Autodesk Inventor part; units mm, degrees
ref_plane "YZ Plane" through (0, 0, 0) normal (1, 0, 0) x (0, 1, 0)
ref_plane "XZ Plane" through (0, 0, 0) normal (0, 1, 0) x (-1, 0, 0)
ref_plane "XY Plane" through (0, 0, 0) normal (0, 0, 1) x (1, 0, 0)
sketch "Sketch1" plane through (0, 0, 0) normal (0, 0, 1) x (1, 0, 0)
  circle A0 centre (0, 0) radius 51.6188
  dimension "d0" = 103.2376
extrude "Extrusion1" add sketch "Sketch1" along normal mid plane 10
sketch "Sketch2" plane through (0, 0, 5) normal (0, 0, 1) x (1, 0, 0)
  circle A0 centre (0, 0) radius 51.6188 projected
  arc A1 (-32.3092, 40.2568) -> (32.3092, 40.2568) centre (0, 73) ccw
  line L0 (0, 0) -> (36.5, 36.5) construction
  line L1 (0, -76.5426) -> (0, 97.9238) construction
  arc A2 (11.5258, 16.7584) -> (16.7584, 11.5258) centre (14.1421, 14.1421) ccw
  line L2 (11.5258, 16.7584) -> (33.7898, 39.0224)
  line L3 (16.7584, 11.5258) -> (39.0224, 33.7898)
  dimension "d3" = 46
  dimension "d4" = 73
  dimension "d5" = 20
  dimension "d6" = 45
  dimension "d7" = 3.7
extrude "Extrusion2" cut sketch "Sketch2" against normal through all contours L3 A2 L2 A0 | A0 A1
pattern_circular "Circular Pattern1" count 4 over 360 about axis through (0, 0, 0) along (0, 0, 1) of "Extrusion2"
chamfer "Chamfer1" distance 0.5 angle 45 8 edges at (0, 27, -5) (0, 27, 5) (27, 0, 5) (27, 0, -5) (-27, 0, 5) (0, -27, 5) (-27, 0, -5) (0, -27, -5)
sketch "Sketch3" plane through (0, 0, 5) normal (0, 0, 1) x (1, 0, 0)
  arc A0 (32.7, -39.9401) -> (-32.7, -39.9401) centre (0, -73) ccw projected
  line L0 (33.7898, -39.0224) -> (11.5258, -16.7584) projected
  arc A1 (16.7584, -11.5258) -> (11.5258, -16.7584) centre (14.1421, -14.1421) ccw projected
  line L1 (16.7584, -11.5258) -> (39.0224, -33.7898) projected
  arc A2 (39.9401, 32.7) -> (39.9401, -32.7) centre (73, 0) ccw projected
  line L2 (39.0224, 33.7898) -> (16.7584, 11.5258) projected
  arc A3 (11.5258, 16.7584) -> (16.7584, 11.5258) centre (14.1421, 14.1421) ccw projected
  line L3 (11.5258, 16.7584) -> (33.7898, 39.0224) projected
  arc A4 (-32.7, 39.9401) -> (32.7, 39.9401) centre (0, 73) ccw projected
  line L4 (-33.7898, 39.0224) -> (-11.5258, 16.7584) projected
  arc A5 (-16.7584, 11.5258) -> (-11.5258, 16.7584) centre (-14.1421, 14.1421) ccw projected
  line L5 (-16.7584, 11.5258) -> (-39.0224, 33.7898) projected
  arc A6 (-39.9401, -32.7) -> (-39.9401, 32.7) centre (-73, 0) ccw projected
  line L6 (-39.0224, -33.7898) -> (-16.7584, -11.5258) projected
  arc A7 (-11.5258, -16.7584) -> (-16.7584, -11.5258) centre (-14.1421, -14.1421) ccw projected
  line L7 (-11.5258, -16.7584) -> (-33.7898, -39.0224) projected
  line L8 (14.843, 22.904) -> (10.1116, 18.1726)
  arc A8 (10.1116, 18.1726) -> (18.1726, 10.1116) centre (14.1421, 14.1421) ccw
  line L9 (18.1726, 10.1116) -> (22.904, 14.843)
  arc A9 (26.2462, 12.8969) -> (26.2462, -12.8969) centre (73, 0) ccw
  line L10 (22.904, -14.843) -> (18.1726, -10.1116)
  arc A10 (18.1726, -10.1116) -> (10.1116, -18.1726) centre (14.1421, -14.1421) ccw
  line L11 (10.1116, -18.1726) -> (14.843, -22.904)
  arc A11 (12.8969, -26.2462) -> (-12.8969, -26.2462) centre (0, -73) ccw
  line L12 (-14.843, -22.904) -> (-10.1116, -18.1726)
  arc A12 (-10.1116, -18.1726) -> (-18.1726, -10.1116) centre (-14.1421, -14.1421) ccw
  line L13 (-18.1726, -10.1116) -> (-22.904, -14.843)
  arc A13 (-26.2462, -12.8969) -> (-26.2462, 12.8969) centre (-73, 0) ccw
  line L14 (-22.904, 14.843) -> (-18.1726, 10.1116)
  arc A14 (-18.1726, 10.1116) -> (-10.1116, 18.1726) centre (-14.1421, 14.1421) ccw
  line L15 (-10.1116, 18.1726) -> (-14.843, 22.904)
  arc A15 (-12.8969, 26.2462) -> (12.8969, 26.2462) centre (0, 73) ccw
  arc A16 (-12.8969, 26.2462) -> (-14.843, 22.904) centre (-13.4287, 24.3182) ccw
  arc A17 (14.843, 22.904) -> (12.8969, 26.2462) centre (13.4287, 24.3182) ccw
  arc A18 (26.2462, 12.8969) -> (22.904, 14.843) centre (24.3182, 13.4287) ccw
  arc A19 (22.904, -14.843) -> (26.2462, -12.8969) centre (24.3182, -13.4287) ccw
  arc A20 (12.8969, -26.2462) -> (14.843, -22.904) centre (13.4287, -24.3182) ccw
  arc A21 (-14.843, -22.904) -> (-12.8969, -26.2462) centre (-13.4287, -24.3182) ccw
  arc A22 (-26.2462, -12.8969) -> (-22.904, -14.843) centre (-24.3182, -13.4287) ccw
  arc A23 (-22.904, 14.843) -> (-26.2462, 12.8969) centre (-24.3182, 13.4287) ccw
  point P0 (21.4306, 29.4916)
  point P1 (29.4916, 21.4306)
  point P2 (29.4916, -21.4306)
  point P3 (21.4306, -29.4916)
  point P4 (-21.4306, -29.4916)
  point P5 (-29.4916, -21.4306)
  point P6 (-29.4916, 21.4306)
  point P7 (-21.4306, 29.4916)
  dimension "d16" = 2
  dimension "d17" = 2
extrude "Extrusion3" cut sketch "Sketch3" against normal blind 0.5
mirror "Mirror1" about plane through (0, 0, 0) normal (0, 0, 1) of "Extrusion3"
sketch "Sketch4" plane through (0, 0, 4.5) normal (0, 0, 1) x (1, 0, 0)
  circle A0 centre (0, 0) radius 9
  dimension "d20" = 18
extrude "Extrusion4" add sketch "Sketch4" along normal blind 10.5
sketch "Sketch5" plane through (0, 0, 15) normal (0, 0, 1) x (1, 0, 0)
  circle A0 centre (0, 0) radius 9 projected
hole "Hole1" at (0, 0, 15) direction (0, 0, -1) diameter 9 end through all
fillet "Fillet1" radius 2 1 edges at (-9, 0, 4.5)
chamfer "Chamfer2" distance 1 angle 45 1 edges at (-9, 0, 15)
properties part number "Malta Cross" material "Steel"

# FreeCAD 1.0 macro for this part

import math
import FreeCAD as App
import Part
import Sketcher
from FreeCAD import Vector
Q = App.Units.Quantity


def edges_at(feature, points):
    """Names of the edges that pass closest to the given points."""
    edges = feature.Shape.Edges
    near = lambda p: min(range(len(edges)), key=lambda i: edges[i].distToShape(Part.Vertex(*p))[0])
    return sorted({f"Edge{near(p) + 1}" for p in points})

doc = App.newDocument("Part")
body = doc.addObject("PartDesign::Body", "Body")

# Sketch on XY plane
sketch1 = body.newObject("Sketcher::SketchObject", "Sketch")
sketch1.AttachmentSupport = (doc.getObject("XY_Plane"), [""])
sketch1.MapMode = "FlatFace"
sketch1.addGeometry(Part.Circle(Vector(0, 0, 0), Vector(0, 0, 1), 51.6188), False)
sketch1.addConstraint([
    Sketcher.Constraint("Coincident", 0, 3, -1, 1),
    Sketcher.Constraint("Diameter", 0, 103.2376),
])
pad1 = body.newObject("PartDesign::Pad", "Pad")
pad1.Profile = sketch1
pad1.Length = 10
pad1.Midplane = True

# Sketch on XY plane
sketch2 = body.newObject("Sketcher::SketchObject", "Sketch001")
sketch2.AttachmentSupport = (doc.getObject("XY_Plane"), [""])
sketch2.MapMode = "FlatFace"
sketch2.AttachmentOffset = App.Placement(Vector(0, 0, 5), App.Rotation())
sketch2.addGeometry([
    Part.LineSegment(Vector(16.7584, 11.5258, 0), Vector(39.0224, 33.7898, 0)),  # 0
    Part.ArcOfCircle(Part.Circle(Vector(0, 0, 0), Vector(0, 0, 1), 51.6188), math.radians(40.889544), math.radians(49.110456)),  # 1
    Part.LineSegment(Vector(33.7898, 39.0224, 0), Vector(11.5258, 16.7584, 0)),  # 2
    Part.ArcOfCircle(Part.Circle(Vector(14.1421, 14.1421, 0), Vector(0, 0, 1), 3.700007), math.radians(135), math.radians(315)),  # 3
    Part.ArcOfCircle(Part.Circle(Vector(0, 0, 0), Vector(0, 0, 1), 51.6188), math.radians(51.250258), math.radians(128.749742)),  # 4
    Part.ArcOfCircle(Part.Circle(Vector(0, 73, 0), Vector(0, 0, 1), 46.000017), math.radians(-134.617754), math.radians(-45.382246)),  # 5
], False)
sketch2.addConstraint([
    Sketcher.Constraint("Coincident", 0, 2, 1, 1),
    Sketcher.Constraint("Coincident", 1, 2, 2, 1),
    Sketcher.Constraint("Tangent", 2, 2, 3, 1),
    Sketcher.Constraint("Tangent", 3, 2, 0, 1),
    Sketcher.Constraint("Coincident", 4, 1, 5, 2),
    Sketcher.Constraint("Coincident", 5, 1, 4, 2),
    Sketcher.Constraint("Coincident", 1, 3, -1, 1),
    Sketcher.Constraint("Coincident", 4, 3, -1, 1),
    Sketcher.Constraint("Equal", 1, 4),
    Sketcher.Constraint("PointOnObject", 5, 3, -2),
    Sketcher.Constraint("Parallel", 0, 2),
    Sketcher.Constraint("Equal", 0, 2),
    Sketcher.Constraint("Radius", 5, 46.0),
    Sketcher.Constraint("Radius", 3, 3.7),
    Sketcher.Constraint("Angle", 0, Q("45 deg")),
    Sketcher.Constraint("DistanceY", -1, 1, 5, 3, 73.0),
    Sketcher.Constraint("Radius", 1, 51.6188),
    Sketcher.Constraint("Distance", 0, 31.486),
])
pocket1 = body.newObject("PartDesign::Pocket", "Pocket")
pocket1.Profile = sketch2
pocket1.Type = "ThroughAll"
doc.recompute()

polarpattern = body.newObject("PartDesign::PolarPattern", "PolarPattern")
polarpattern.Originals = [pocket1]
polarpattern.Axis = (doc.getObject("Z_Axis"), [""])
polarpattern.Angle = 360
polarpattern.Occurrences = 4
body.Tip = polarpattern
doc.recompute()

chamfer = body.newObject("PartDesign::Chamfer", "Chamfer")
chamfer.Base = (polarpattern, edges_at(polarpattern, [
    (0, 27, -5),
    (0, 27, 5),
    (27, 0, 5),
    (27, 0, -5),
    (-27, 0, 5),
    (0, -27, 5),
    (-27, 0, -5),
    (0, -27, -5),
]))
chamfer.Size = 0.5

# Sketch on XY plane
sketch3 = body.newObject("Sketcher::SketchObject", "Sketch002")
sketch3.AttachmentSupport = (doc.getObject("XY_Plane"), [""])
sketch3.MapMode = "FlatFace"
sketch3.AttachmentOffset = App.Placement(Vector(0, 0, 5), App.Rotation())
sketch3.addGeometry([
    Part.LineSegment(Vector(10.1116, 18.1726, 0), Vector(14.843, 22.904, 0)),  # 0
    Part.ArcOfCircle(Part.Circle(Vector(13.4287, 24.3182, 0), Vector(0, 0, 1), 2.000052), math.radians(-44.997974), math.radians(105.420447)),  # 1
    Part.ArcOfCircle(Part.Circle(Vector(0, 73, 0), Vector(0, 0, 1), 48.499978), math.radians(-105.421364), math.radians(-74.578636)),  # 2
    Part.ArcOfCircle(Part.Circle(Vector(-13.4287, 24.3182, 0), Vector(0, 0, 1), 1.999999), math.radians(74.579553), math.radians(224.997974)),  # 3
    Part.LineSegment(Vector(-14.843, 22.904, 0), Vector(-10.1116, 18.1726, 0)),  # 4
    Part.ArcOfCircle(Part.Circle(Vector(-14.1421, 14.1421, 0), Vector(0, 0, 1), 5.699988), math.radians(-135), math.radians(45)),  # 5
    Part.LineSegment(Vector(-18.1726, 10.1116, 0), Vector(-22.904, 14.843, 0)),  # 6
    Part.ArcOfCircle(Part.Circle(Vector(-24.3182, 13.4287, 0), Vector(0, 0, 1), 2.000052), math.radians(45.002026), math.radians(195.420447)),  # 7
    Part.ArcOfCircle(Part.Circle(Vector(-73, 0, 0), Vector(0, 0, 1), 48.499978), math.radians(-15.421364), math.radians(15.421364)),  # 8
    Part.ArcOfCircle(Part.Circle(Vector(-24.3182, -13.4287, 0), Vector(0, 0, 1), 1.999999), math.radians(164.579553), math.radians(314.997974)),  # 9
    Part.LineSegment(Vector(-22.904, -14.843, 0), Vector(-18.1726, -10.1116, 0)),  # 10
    Part.ArcOfCircle(Part.Circle(Vector(-14.1421, -14.1421, 0), Vector(0, 0, 1), 5.699988), math.radians(-45), math.radians(135)),  # 11
    Part.LineSegment(Vector(-10.1116, -18.1726, 0), Vector(-14.843, -22.904, 0)),  # 12
    Part.ArcOfCircle(Part.Circle(Vector(-13.4287, -24.3182, 0), Vector(0, 0, 1), 2.000052), math.radians(135.002026), math.radians(285.420447)),  # 13
    Part.ArcOfCircle(Part.Circle(Vector(0, -73, 0), Vector(0, 0, 1), 48.499978), math.radians(74.578636), math.radians(105.421364)),  # 14
    Part.ArcOfCircle(Part.Circle(Vector(13.4287, -24.3182, 0), Vector(0, 0, 1), 1.999999), math.radians(-105.420447), math.radians(44.997974)),  # 15
    Part.LineSegment(Vector(14.843, -22.904, 0), Vector(10.1116, -18.1726, 0)),  # 16
    Part.ArcOfCircle(Part.Circle(Vector(14.1421, -14.1421, 0), Vector(0, 0, 1), 5.699988), math.radians(45), math.radians(225)),  # 17
    Part.LineSegment(Vector(18.1726, -10.1116, 0), Vector(22.904, -14.843, 0)),  # 18
    Part.ArcOfCircle(Part.Circle(Vector(24.3182, -13.4287, 0), Vector(0, 0, 1), 2.000052), math.radians(-134.997974), math.radians(15.420447)),  # 19
    Part.ArcOfCircle(Part.Circle(Vector(73, 0, 0), Vector(0, 0, 1), 48.499978), math.radians(164.578636), math.radians(195.421364)),  # 20
    Part.ArcOfCircle(Part.Circle(Vector(24.3182, 13.4287, 0), Vector(0, 0, 1), 1.999999), math.radians(-15.420447), math.radians(134.997974)),  # 21
    Part.LineSegment(Vector(22.904, 14.843, 0), Vector(18.1726, 10.1116, 0)),  # 22
    Part.ArcOfCircle(Part.Circle(Vector(14.1421, 14.1421, 0), Vector(0, 0, 1), 5.699988), math.radians(135), math.radians(315)),  # 23
], False)
sketch3.addConstraint([
    Sketcher.Constraint("Tangent", 0, 2, 1, 1),
    Sketcher.Constraint("Tangent", 1, 2, 2, 2),
    Sketcher.Constraint("Tangent", 2, 1, 3, 1),
    Sketcher.Constraint("Tangent", 3, 2, 4, 1),
    Sketcher.Constraint("Tangent", 4, 2, 5, 2),
    Sketcher.Constraint("Tangent", 5, 1, 6, 1),
    Sketcher.Constraint("Tangent", 6, 2, 7, 1),
    Sketcher.Constraint("Tangent", 7, 2, 8, 2),
    Sketcher.Constraint("Tangent", 8, 1, 9, 1),
    Sketcher.Constraint("Tangent", 9, 2, 10, 1),
    Sketcher.Constraint("Tangent", 10, 2, 11, 2),
    Sketcher.Constraint("Tangent", 11, 1, 12, 1),
    Sketcher.Constraint("Tangent", 12, 2, 13, 1),
    Sketcher.Constraint("Tangent", 13, 2, 14, 2),
    Sketcher.Constraint("Tangent", 14, 1, 15, 1),
    Sketcher.Constraint("Tangent", 15, 2, 16, 1),
    Sketcher.Constraint("Tangent", 16, 2, 17, 2),
    Sketcher.Constraint("Tangent", 17, 1, 18, 1),
    Sketcher.Constraint("Tangent", 18, 2, 19, 1),
    Sketcher.Constraint("Tangent", 19, 2, 20, 2),
    Sketcher.Constraint("Tangent", 20, 1, 21, 1),
    Sketcher.Constraint("Tangent", 21, 2, 22, 1),
    Sketcher.Constraint("Tangent", 22, 2, 23, 2),
    Sketcher.Constraint("Tangent", 23, 1, 0, 1),
    Sketcher.Constraint("Equal", 1, 3),
    Sketcher.Constraint("Equal", 3, 7),
    Sketcher.Constraint("Equal", 2, 8),
    Sketcher.Constraint("Equal", 7, 9),
    Sketcher.Constraint("Equal", 5, 11),
    Sketcher.Constraint("Equal", 9, 13),
    Sketcher.Constraint("Equal", 8, 14),
    Sketcher.Constraint("Equal", 13, 15),
    Sketcher.Constraint("Equal", 11, 17),
    Sketcher.Constraint("Equal", 15, 19),
    Sketcher.Constraint("Equal", 14, 20),
    Sketcher.Constraint("Equal", 19, 21),
    Sketcher.Constraint("Equal", 17, 23),
    Sketcher.Constraint("Symmetric", 1, 3, 13, 3, -1, 1),
    Sketcher.Constraint("Symmetric", 3, 3, 15, 3, -1, 1),
    Sketcher.Constraint("Symmetric", 5, 3, 17, 3, -1, 1),
    Sketcher.Constraint("Symmetric", 7, 3, 19, 3, -1, 1),
    Sketcher.Constraint("Symmetric", 9, 3, 21, 3, -1, 1),
    Sketcher.Constraint("Symmetric", 11, 3, 23, 3, -1, 1),
    Sketcher.Constraint("Symmetric", 1, 3, 3, 3, -2),
    Sketcher.Constraint("Symmetric", 11, 3, 17, 3, -2),
    Sketcher.Constraint("Symmetric", 9, 3, 19, 3, -2),
    Sketcher.Constraint("Perpendicular", 0, 4),
    Sketcher.Constraint("Parallel", 4, 6),
    Sketcher.Constraint("Equal", 4, 6),
    Sketcher.Constraint("Radius", 1, 2.0),
    Sketcher.Constraint("Radius", 2, 48.5),
    Sketcher.Constraint("Radius", 5, 5.7),
    Sketcher.Constraint("DistanceY", -1, 1, 2, 3, 73.0),
    Sketcher.Constraint("DistanceX", 8, 3, -1, 1, 73.0),
    Sketcher.Constraint("DistanceX", 5, 3, -1, 1, 14.142),
])
pocket2 = body.newObject("PartDesign::Pocket", "Pocket001")
pocket2.Profile = sketch3
pocket2.Length = 0.5
doc.recompute()

mirrored = body.newObject("PartDesign::Mirrored", "Mirrored")
mirrored.Originals = [pocket2]
mirrored.MirrorPlane = (doc.getObject("XY_Plane"), [""])
body.Tip = mirrored

# Sketch on XY plane
sketch4 = body.newObject("Sketcher::SketchObject", "Sketch003")
sketch4.AttachmentSupport = (doc.getObject("XY_Plane"), [""])
sketch4.MapMode = "FlatFace"
sketch4.AttachmentOffset = App.Placement(Vector(0, 0, 4.5), App.Rotation())
sketch4.addGeometry(Part.Circle(Vector(0, 0, 0), Vector(0, 0, 1), 9), False)
sketch4.addConstraint([
    Sketcher.Constraint("Coincident", 0, 3, -1, 1),
    Sketcher.Constraint("Diameter", 0, 18.0),
])
pad2 = body.newObject("PartDesign::Pad", "Pad001")
pad2.Profile = sketch4
pad2.Length = 10.5

# Sketch on XY plane
sketch5 = body.newObject("Sketcher::SketchObject", "Sketch004")
sketch5.AttachmentSupport = (doc.getObject("XY_Plane"), [""])
sketch5.MapMode = "FlatFace"
sketch5.AttachmentOffset = App.Placement(Vector(0, 0, 15), App.Rotation())
sketch5.addGeometry(Part.Circle(Vector(0, 0, 0), Vector(0, 0, 1), 4.5), False)
sketch5.addConstraint([
    Sketcher.Constraint("Coincident", 0, 3, -1, 1),
    Sketcher.Constraint("Diameter", 0, 9.0),
])
doc.recompute()
hole = body.newObject("PartDesign::Hole", "Hole")
hole.Profile = sketch5
hole.ThreadType = "None"
hole.Diameter = 9
hole.DepthType = "ThroughAll"
doc.recompute()

fillet = body.newObject("PartDesign::Fillet", "Fillet")
fillet.Base = (hole, edges_at(hole, [(-9, 0, 4.5)]))
fillet.Radius = 2
doc.recompute()

chamfer2 = body.newObject("PartDesign::Chamfer", "Chamfer001")
chamfer2.Base = (fillet, edges_at(fillet, [(-9, 0, 15)]))
chamfer2.Size = 1

doc.recompute()
